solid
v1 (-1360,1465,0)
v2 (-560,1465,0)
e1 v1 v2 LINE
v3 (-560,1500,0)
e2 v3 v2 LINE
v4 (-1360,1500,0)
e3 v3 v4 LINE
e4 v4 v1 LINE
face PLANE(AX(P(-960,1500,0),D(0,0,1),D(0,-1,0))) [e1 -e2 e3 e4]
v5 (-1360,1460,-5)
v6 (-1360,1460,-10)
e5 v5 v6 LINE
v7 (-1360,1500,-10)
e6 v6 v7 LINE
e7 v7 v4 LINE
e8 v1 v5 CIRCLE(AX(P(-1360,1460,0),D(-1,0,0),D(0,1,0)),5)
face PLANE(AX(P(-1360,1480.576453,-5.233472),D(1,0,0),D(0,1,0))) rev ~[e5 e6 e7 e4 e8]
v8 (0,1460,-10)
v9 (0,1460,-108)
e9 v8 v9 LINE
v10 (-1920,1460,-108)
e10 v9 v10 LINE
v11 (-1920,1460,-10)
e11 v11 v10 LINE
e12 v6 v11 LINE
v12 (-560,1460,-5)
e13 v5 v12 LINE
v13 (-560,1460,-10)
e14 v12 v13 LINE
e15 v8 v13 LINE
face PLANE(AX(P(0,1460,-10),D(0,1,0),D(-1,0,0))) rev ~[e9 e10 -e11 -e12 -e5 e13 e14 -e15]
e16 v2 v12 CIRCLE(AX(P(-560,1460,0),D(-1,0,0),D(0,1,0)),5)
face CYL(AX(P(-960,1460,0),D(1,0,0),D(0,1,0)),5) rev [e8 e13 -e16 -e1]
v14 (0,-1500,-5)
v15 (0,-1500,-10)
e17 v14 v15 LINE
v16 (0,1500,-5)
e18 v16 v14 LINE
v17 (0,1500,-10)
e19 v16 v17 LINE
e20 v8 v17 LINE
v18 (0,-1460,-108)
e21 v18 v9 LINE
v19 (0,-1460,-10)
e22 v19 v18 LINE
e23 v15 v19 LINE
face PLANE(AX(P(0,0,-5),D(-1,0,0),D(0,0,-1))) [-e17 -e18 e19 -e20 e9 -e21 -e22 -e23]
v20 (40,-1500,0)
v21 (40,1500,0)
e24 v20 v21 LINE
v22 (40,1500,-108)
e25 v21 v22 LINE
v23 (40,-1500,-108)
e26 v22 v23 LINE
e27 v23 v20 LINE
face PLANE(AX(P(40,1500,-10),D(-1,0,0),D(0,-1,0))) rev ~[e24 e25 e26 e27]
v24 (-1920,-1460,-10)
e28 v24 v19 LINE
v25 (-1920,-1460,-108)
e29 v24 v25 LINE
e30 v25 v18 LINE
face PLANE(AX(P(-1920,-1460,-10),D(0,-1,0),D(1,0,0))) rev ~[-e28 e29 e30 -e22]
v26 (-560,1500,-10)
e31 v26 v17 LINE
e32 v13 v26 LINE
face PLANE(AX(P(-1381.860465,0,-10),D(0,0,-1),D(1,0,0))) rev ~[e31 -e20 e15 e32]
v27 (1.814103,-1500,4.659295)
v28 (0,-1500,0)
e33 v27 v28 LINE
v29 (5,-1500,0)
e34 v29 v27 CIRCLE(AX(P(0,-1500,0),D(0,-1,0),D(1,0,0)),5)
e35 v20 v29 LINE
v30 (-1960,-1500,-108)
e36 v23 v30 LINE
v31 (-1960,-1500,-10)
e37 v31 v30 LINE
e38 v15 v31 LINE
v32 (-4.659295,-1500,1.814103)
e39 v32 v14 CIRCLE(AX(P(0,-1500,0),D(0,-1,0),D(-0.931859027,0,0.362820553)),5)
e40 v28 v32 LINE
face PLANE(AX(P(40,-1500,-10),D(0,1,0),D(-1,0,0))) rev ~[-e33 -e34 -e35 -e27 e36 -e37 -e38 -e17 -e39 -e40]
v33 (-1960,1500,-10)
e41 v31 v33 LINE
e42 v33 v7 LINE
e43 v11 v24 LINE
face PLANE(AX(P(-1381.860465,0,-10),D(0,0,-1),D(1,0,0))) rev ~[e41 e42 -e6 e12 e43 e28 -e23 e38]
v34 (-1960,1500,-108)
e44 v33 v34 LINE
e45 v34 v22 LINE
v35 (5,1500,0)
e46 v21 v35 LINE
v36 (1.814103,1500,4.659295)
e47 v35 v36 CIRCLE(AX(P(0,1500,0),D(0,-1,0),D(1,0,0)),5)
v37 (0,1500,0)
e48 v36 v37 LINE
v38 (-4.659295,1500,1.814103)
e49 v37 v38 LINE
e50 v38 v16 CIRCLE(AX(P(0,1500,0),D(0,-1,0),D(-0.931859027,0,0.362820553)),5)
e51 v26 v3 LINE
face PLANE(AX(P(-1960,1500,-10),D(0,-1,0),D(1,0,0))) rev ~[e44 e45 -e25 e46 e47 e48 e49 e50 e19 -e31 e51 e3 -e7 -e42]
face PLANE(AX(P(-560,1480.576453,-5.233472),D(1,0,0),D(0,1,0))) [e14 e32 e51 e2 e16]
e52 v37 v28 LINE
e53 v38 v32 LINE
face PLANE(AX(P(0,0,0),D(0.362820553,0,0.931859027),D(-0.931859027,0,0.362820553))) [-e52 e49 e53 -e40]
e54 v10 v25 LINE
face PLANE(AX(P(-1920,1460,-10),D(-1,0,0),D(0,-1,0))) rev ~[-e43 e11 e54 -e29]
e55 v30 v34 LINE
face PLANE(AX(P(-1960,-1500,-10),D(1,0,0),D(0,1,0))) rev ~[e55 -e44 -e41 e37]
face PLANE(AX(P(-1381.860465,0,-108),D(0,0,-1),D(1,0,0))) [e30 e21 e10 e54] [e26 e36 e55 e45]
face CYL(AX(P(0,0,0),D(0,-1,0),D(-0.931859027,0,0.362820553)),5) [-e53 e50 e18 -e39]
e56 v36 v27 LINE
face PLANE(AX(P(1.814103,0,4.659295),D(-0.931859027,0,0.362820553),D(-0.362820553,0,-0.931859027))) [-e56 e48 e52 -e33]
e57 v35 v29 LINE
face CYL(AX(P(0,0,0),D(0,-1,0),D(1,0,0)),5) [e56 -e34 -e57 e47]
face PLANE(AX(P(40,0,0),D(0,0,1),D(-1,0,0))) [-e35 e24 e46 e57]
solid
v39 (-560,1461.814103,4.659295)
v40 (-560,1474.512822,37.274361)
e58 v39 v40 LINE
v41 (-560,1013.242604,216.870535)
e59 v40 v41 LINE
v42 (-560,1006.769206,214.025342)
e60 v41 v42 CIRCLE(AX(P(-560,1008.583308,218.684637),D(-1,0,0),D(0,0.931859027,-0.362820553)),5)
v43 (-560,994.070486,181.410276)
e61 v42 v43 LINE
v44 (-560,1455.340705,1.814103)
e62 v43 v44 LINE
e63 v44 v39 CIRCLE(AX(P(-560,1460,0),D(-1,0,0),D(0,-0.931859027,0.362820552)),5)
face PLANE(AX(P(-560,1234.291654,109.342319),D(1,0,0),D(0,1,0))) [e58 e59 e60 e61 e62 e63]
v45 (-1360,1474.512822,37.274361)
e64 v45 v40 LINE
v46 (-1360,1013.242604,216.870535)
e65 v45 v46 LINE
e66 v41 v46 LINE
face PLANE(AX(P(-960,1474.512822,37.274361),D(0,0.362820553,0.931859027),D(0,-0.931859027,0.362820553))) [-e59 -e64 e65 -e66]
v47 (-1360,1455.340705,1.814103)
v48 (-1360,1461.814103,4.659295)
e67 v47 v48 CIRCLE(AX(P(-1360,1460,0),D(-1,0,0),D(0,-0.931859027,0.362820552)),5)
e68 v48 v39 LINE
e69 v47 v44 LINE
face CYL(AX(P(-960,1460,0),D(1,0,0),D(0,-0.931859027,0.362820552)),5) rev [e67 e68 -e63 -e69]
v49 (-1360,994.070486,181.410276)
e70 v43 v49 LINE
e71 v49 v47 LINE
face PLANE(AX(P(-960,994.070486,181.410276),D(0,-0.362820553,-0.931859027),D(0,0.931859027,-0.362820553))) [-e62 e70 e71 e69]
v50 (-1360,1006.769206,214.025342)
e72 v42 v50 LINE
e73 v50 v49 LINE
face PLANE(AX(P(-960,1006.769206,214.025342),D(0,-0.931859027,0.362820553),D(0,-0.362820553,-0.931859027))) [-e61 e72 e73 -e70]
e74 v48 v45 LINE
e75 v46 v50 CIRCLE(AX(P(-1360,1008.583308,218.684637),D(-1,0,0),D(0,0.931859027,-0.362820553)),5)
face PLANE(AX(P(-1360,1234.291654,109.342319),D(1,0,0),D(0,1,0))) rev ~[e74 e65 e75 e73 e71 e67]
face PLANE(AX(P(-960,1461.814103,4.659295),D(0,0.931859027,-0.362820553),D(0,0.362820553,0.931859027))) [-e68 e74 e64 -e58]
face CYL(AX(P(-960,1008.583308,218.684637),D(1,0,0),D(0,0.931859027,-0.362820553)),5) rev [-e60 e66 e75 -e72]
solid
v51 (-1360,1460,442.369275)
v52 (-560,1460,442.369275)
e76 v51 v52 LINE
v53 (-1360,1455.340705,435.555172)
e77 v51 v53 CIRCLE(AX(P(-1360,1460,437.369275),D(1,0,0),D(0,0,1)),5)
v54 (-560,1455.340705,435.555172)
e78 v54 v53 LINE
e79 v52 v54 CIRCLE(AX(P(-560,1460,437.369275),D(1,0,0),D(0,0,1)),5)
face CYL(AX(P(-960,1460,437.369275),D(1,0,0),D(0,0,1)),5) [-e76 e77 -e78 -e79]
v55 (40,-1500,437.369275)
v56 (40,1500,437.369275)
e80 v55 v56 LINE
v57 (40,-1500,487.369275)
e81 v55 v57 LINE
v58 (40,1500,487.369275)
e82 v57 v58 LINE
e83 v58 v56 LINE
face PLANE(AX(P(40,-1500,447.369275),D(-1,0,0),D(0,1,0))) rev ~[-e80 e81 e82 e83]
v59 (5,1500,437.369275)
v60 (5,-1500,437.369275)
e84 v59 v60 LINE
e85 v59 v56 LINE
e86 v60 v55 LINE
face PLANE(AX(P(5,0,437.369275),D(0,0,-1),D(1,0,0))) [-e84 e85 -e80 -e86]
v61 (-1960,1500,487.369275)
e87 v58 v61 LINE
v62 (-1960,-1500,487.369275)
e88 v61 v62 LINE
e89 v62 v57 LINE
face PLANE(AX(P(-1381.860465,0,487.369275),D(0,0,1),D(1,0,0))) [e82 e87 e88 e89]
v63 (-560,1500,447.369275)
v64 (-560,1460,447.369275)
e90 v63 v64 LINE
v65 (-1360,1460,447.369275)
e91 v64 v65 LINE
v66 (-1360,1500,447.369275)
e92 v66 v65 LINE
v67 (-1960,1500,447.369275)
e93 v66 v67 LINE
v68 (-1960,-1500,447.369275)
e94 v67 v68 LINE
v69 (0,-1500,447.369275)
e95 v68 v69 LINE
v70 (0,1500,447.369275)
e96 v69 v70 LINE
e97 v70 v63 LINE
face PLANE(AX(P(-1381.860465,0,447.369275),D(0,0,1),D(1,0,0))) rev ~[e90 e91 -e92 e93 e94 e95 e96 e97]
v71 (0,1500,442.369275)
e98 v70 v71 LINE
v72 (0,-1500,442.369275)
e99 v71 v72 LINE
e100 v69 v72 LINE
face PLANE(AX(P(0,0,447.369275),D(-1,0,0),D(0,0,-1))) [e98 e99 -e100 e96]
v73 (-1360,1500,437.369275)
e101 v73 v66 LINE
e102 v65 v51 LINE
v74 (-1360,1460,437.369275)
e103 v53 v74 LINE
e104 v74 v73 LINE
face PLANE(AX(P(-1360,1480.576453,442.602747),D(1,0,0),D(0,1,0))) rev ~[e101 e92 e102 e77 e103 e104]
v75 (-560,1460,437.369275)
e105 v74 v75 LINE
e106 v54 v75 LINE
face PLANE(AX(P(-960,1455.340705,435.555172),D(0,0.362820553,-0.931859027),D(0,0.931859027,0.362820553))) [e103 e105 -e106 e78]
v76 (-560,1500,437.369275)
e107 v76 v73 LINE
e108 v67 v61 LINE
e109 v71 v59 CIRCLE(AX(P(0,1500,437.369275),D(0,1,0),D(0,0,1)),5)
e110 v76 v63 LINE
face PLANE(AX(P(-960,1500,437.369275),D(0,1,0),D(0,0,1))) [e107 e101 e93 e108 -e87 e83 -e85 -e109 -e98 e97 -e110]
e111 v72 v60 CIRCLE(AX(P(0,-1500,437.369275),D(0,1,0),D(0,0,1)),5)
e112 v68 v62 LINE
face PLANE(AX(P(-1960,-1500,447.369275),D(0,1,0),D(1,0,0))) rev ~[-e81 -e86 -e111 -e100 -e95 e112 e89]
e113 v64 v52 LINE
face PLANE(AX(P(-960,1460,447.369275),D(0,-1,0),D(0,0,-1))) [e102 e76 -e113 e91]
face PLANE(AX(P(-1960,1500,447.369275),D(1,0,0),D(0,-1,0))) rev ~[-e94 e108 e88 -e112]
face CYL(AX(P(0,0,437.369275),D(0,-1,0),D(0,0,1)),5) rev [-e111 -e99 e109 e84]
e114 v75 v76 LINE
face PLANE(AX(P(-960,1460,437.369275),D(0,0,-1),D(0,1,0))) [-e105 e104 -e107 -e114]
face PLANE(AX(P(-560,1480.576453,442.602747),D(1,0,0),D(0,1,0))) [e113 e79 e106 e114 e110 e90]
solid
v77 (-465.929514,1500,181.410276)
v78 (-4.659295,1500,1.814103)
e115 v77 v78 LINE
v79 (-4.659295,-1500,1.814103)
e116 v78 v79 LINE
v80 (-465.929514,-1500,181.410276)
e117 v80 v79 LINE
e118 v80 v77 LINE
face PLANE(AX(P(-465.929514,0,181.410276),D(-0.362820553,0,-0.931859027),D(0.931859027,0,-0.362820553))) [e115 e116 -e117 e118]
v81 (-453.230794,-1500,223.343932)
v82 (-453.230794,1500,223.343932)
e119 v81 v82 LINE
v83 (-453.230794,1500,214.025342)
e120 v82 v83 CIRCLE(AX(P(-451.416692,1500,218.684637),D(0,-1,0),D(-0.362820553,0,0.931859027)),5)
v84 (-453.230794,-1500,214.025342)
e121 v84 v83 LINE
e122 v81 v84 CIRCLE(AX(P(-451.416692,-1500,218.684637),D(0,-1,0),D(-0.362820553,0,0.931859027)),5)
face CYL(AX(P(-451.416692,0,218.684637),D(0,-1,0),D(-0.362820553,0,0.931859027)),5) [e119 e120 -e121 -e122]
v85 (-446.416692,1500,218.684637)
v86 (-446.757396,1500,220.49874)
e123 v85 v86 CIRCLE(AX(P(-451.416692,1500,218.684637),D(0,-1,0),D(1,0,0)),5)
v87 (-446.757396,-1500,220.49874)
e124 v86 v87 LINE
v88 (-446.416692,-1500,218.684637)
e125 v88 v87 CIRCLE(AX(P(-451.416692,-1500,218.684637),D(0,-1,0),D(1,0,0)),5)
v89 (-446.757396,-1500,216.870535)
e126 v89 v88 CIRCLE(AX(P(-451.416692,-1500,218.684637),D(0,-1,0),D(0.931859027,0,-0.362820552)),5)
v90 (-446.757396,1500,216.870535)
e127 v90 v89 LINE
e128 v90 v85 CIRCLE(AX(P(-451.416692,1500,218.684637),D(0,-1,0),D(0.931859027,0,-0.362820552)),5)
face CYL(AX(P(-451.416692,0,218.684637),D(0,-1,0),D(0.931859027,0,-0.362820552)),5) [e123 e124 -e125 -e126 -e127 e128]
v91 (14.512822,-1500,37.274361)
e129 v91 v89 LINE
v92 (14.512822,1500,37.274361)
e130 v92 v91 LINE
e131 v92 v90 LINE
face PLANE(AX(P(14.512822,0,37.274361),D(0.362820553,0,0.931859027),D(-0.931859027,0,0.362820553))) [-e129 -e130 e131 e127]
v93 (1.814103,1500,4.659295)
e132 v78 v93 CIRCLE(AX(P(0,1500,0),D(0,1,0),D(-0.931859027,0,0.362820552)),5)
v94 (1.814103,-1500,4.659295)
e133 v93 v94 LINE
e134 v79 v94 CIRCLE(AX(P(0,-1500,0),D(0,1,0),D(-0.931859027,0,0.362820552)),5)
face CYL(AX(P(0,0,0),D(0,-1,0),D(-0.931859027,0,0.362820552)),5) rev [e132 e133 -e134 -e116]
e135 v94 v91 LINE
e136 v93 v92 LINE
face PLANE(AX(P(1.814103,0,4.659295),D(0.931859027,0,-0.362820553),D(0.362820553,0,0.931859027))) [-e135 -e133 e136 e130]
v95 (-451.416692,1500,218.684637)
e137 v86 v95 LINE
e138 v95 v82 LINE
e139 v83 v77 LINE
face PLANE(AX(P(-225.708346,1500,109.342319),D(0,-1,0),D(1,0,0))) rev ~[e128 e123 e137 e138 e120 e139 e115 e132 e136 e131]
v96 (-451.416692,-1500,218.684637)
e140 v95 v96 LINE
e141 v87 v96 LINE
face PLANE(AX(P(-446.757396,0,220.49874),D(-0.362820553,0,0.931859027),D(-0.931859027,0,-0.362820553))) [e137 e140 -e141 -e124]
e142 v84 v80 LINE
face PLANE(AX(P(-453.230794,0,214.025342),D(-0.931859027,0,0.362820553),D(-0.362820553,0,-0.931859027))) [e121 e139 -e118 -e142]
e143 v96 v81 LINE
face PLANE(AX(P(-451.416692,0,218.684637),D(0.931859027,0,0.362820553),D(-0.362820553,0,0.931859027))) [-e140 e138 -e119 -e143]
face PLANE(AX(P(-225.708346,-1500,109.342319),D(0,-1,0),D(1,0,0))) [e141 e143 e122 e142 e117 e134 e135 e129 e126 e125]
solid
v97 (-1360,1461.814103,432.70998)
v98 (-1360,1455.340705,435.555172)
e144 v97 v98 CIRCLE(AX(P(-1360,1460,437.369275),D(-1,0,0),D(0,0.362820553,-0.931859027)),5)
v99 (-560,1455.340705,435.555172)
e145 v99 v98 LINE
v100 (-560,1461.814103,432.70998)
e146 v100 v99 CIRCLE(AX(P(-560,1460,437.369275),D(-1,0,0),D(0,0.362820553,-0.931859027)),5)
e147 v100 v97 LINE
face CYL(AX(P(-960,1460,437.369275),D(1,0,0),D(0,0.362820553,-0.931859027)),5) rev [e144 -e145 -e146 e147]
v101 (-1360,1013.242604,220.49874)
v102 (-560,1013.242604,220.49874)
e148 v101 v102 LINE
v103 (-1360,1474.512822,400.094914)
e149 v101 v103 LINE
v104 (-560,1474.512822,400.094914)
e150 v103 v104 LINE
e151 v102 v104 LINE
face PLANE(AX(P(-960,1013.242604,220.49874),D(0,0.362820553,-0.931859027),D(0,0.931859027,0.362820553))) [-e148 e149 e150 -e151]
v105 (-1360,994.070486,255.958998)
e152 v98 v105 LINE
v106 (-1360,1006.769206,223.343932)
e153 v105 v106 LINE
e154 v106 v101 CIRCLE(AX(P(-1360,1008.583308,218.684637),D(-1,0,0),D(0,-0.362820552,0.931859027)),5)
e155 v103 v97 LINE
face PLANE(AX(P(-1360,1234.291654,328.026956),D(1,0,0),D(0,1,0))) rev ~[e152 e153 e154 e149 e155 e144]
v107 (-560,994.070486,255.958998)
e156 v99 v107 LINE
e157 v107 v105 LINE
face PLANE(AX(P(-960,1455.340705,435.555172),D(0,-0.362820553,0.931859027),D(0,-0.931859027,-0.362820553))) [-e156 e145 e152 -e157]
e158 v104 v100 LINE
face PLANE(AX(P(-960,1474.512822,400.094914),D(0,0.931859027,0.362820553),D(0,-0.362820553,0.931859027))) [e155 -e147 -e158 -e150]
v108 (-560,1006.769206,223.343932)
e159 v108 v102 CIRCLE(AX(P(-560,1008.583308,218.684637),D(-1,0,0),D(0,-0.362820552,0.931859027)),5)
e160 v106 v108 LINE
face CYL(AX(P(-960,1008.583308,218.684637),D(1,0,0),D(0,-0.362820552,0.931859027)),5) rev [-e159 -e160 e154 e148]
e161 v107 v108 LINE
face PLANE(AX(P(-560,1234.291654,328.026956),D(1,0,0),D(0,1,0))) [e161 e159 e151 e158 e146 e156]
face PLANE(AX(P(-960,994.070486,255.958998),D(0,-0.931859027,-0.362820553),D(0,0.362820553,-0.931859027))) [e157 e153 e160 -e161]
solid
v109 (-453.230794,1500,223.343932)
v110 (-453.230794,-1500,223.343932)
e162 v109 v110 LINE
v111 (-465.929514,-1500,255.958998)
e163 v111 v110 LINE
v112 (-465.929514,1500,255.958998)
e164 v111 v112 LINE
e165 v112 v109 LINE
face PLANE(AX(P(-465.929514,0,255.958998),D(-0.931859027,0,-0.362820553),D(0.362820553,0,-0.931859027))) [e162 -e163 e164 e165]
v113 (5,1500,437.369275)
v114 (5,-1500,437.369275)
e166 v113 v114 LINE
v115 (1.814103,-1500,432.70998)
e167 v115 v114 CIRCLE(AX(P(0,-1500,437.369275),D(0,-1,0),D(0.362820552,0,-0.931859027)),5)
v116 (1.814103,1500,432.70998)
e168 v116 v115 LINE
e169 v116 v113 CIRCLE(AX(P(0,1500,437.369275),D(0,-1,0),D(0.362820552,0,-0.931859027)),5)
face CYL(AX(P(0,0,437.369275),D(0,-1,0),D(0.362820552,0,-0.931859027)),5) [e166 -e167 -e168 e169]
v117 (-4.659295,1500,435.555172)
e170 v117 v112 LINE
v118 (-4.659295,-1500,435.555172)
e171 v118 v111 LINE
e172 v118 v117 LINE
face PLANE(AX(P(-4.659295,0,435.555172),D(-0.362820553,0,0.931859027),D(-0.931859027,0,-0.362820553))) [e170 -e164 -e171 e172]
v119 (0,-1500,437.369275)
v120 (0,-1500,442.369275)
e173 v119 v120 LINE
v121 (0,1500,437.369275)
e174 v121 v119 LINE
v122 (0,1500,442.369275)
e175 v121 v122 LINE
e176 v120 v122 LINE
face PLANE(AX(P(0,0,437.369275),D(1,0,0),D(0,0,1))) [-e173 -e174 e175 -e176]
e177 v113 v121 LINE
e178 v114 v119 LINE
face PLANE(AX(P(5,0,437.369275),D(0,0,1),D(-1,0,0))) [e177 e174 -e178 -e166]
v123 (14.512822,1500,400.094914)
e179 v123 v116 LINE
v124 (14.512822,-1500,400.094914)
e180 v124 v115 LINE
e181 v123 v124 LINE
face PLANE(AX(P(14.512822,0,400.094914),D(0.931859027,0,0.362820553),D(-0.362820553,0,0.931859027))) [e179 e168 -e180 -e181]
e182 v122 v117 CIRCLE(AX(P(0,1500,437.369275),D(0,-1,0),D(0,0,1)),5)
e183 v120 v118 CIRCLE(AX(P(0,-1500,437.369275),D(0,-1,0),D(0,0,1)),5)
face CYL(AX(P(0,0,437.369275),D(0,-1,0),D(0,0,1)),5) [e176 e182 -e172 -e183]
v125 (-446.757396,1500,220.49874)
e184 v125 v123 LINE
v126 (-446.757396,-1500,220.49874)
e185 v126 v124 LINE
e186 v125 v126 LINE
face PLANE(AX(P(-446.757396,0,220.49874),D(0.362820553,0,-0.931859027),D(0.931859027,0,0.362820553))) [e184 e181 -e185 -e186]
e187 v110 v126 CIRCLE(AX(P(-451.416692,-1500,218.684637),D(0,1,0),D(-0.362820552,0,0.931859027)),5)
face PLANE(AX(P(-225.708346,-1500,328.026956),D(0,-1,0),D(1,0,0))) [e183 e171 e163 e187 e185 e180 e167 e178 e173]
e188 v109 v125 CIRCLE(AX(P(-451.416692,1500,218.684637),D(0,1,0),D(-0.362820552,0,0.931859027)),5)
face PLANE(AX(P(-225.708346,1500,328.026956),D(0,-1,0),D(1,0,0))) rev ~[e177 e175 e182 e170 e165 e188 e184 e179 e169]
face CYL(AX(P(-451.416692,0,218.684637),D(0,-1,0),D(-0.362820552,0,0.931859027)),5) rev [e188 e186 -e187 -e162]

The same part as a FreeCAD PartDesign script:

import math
import FreeCAD as App
import Part
import Sketcher
from FreeCAD import Vector
Q = App.Units.Quantity


def add_polygon(sketch, points):
    """Adds a closed chain of lines whose ends are joined by coincident constraints."""
    first, n = sketch.GeometryCount, len(points)
    for a, b in zip(points, points[1:] + points[:1]):
        sketch.addGeometry(Part.LineSegment(App.Vector(*a, 0), App.Vector(*b, 0)), False)
    for i in range(n):
        sketch.addConstraint(Sketcher.Constraint("Coincident", first + i, 2, first + (i + 1) % n, 1))

doc = App.newDocument("Part")
body = doc.addObject("PartDesign::Body", "Body")

# Sketch on XZ plane
sketch1 = body.newObject("Sketcher::SketchObject", "Sketch")
sketch1.AttachmentSupport = (doc.getObject("XZ_Plane"), [""])
sketch1.MapMode = "FlatFace"
sketch1.addGeometry([
    Part.LineSegment(Vector(0, 447.369275, 0), Vector(0, 442.369275, 0)),  # 0
    Part.ArcOfCircle(Part.Circle(Vector(0, 437.369275, 0), Vector(0, 0, 1), 5), math.radians(0), math.radians(90)),  # 1
    Part.LineSegment(Vector(5, 437.369275, 0), Vector(40, 437.369275, 0)),  # 2
    Part.LineSegment(Vector(40, 437.369275, 0), Vector(40, 447.369275, 0)),  # 3
    Part.LineSegment(Vector(40, 447.369275, 0), Vector(0, 447.369275, 0)),  # 4
], False)
sketch1.addConstraint([
    Sketcher.Constraint("Coincident", 0, 2, 1, 2),
    Sketcher.Constraint("Coincident", 1, 1, 2, 1),
    Sketcher.Constraint("Coincident", 2, 2, 3, 1),
    Sketcher.Constraint("Coincident", 3, 2, 4, 1),
    Sketcher.Constraint("Coincident", 4, 2, 0, 1),
    Sketcher.Constraint("Vertical", 0),
    Sketcher.Constraint("Horizontal", 2),
    Sketcher.Constraint("Vertical", 3),
    Sketcher.Constraint("Horizontal", 4),
    Sketcher.Constraint("PointOnObject", 1, 3, -2),
    Sketcher.Constraint("PointOnObject", 0, 2, -2),
    Sketcher.Constraint("Radius", 1, Q("5 mm")),
    Sketcher.Constraint("DistanceX", 2, 1, 2, 2, Q("35 mm")),
    Sketcher.Constraint("DistanceY", 0, 2, 0, 1, Q("5 mm")),
    Sketcher.Constraint("DistanceY", 3, 1, 3, 2, Q("10 mm")),
    Sketcher.Constraint("DistanceY", -1, 1, 1, 3, Q("437.369275 mm")),
])
pad1 = body.newObject("PartDesign::Pad", "Pad")
pad1.Profile = sketch1
pad1.Length = 3000
pad1.Midplane = True

# Sketch on XY plane
sketch2 = body.newObject("Sketcher::SketchObject", "Sketch001")
sketch2.AttachmentSupport = (doc.getObject("XY_Plane"), [""])
sketch2.MapMode = "FlatFace"
sketch2.AttachmentOffset = App.Placement(Vector(0, 0, 447.369275), App.Rotation())
add_polygon(sketch2, [(-1960, 1500), (-1960, -1500), (40, -1500), (40, 1500)])  # lines 0-3
sketch2.addConstraint([
    Sketcher.Constraint("Vertical", 0),
    Sketcher.Constraint("Horizontal", 1),
    Sketcher.Constraint("Vertical", 2),
    Sketcher.Constraint("Horizontal", 3),
    Sketcher.Constraint("DistanceX", 1, 1, 1, 2, Q("2000 mm")),
    Sketcher.Constraint("DistanceY", 0, 2, 0, 1, Q("3000 mm")),
    Sketcher.Constraint("DistanceX", 0, 2, -1, 1, Q("1960 mm")),
    Sketcher.Constraint("DistanceY", 0, 2, -1, 1, Q("1500 mm")),
])
pad2 = body.newObject("PartDesign::Pad", "Pad001")
pad2.Profile = sketch2
pad2.Length = 40
body2 = doc.addObject("PartDesign::Body", "Body001")

# Sketch on XZ plane
sketch3 = body2.newObject("Sketcher::SketchObject", "Sketch002")
sketch3.AttachmentSupport = (doc.getObject("XZ_Plane001"), [""])
sketch3.MapMode = "FlatFace"
sketch3.addGeometry([
    Part.LineSegment(Vector(-465.929514, 255.958998, 0), Vector(-453.230794, 223.343932, 0)),  # 0
    Part.ArcOfCircle(Part.Circle(Vector(-451.416692, 218.684637, 0), Vector(0, 0, 1), 5), math.radians(21.273517), math.radians(111.273517)),  # 1
    Part.LineSegment(Vector(-446.757396, 220.49874, 0), Vector(14.512822, 400.094914, 0)),  # 2
    Part.LineSegment(Vector(14.512822, 400.094914, 0), Vector(1.814103, 432.70998, 0)),  # 3
    Part.ArcOfCircle(Part.Circle(Vector(0, 437.369275, 0), Vector(0, 0, 1), 5), math.radians(-68.726483), math.radians(0)),  # 4
    Part.LineSegment(Vector(5, 437.369275, 0), Vector(0, 437.369275, 0)),  # 5
    Part.LineSegment(Vector(0, 437.369275, 0), Vector(0, 442.369275, 0)),  # 6
    Part.ArcOfCircle(Part.Circle(Vector(0, 437.369275, 0), Vector(0, 0, 1), 5), math.radians(90), math.radians(201.273517)),  # 7
    Part.LineSegment(Vector(-4.659295, 435.555172, 0), Vector(-465.929514, 255.958998, 0)),  # 8
], False)
sketch3.addConstraint([
    Sketcher.Constraint("Coincident", 0, 2, 1, 2),
    Sketcher.Constraint("Coincident", 1, 1, 2, 1),
    Sketcher.Constraint("Coincident", 2, 2, 3, 1),
    Sketcher.Constraint("Coincident", 3, 2, 4, 1),
    Sketcher.Constraint("Coincident", 4, 2, 5, 1),
    Sketcher.Constraint("Coincident", 5, 2, 6, 1),
    Sketcher.Constraint("Coincident", 6, 2, 7, 1),
    Sketcher.Constraint("Coincident", 7, 2, 8, 1),
    Sketcher.Constraint("Coincident", 8, 2, 0, 1),
    Sketcher.Constraint("Horizontal", 5),
    Sketcher.Constraint("Vertical", 6),
    Sketcher.Constraint("Coincident", 7, 3, 4, 3),
    Sketcher.Constraint("Coincident", 5, 2, 4, 3),
    Sketcher.Constraint("Equal", 1, 4),
    Sketcher.Constraint("Equal", 4, 7),
    Sketcher.Constraint("PointOnObject", 4, 3, -2),
    Sketcher.Constraint("Perpendicular", 0, 2),
    Sketcher.Constraint("Perpendicular", 2, 3),
    Sketcher.Constraint("Perpendicular", 3, 8),
    Sketcher.Constraint("Equal", 0, 3),
    Sketcher.Constraint("Equal", 2, 8),
    Sketcher.Constraint("Radius", 1, Q("5 mm")),
    Sketcher.Constraint("Distance", 0, Q("35 mm")),
    Sketcher.Constraint("Distance", 2, Q("495 mm")),
    Sketcher.Constraint("DistanceY", -1, 1, 8, 2, Q("255.958998 mm")),
    Sketcher.Constraint("DistanceX", 1, 1, 3, 2, Q("448.571499 mm")),
    Sketcher.Constraint("DistanceX", 1, 3, -1, 1, Q("451.416692 mm")),
    Sketcher.Constraint("DistanceY", -1, 1, 1, 1, Q("220.49874 mm")),
])
pad3 = body2.newObject("PartDesign::Pad", "Pad002")
pad3.Profile = sketch3
pad3.Length = 3000
pad3.Midplane = True
body3 = doc.addObject("PartDesign::Body", "Body002")

# Sketch on XZ plane
sketch4 = body3.newObject("Sketcher::SketchObject", "Sketch003")
sketch4.AttachmentSupport = (doc.getObject("XZ_Plane002"), [""])
sketch4.MapMode = "FlatFace"
sketch4.addGeometry([
    Part.LineSegment(Vector(-465.929514, 181.410276, 0), Vector(-4.659295, 1.814103, 0)),  # 0
    Part.ArcOfCircle(Part.Circle(Vector(0, 0, 0), Vector(0, 0, 1), 5), math.radians(68.726483), math.radians(158.726483)),  # 1
    Part.LineSegment(Vector(1.814103, 4.659295, 0), Vector(14.512822, 37.274361, 0)),  # 2
    Part.LineSegment(Vector(14.512822, 37.274361, 0), Vector(-446.757396, 216.870535, 0)),  # 3
    Part.ArcOfCircle(Part.Circle(Vector(-451.416692, 218.684637, 0), Vector(0, 0, 1), 5), math.radians(-21.273517), math.radians(0)),  # 4
    Part.ArcOfCircle(Part.Circle(Vector(-451.416692, 218.684637, 0), Vector(0, 0, 1), 5), math.radians(0), math.radians(21.273517)),  # 5
    Part.LineSegment(Vector(-446.757396, 220.49874, 0), Vector(-451.416692, 218.684637, 0)),  # 6
    Part.LineSegment(Vector(-451.416692, 218.684637, 0), Vector(-453.230794, 223.343932, 0)),  # 7
    Part.ArcOfCircle(Part.Circle(Vector(-451.416692, 218.684637, 0), Vector(0, 0, 1), 5), math.radians(111.273517), math.radians(248.726483)),  # 8
    Part.LineSegment(Vector(-453.230794, 214.025342, 0), Vector(-465.929514, 181.410276, 0)),  # 9
], False)
sketch4.addConstraint([
    Sketcher.Constraint("Coincident", 0, 2, 1, 2),
    Sketcher.Constraint("Coincident", 1, 1, 2, 1),
    Sketcher.Constraint("Coincident", 2, 2, 3, 1),
    Sketcher.Constraint("Coincident", 3, 2, 4, 1),
    Sketcher.Constraint("Tangent", 4, 2, 5, 1),
    Sketcher.Constraint("Coincident", 5, 2, 6, 1),
    Sketcher.Constraint("Coincident", 6, 2, 7, 1),
    Sketcher.Constraint("Coincident", 7, 2, 8, 1),
    Sketcher.Constraint("Coincident", 8, 2, 9, 1),
    Sketcher.Constraint("Coincident", 9, 2, 0, 1),
    Sketcher.Constraint("Coincident", 1, 3, -1, 1),
    Sketcher.Constraint("Coincident", 8, 3, 4, 3),
    Sketcher.Constraint("Coincident", 6, 2, 4, 3),
    Sketcher.Constraint("Equal", 1, 4),
    Sketcher.Constraint("Equal", 4, 5),
    Sketcher.Constraint("Equal", 5, 8),
    Sketcher.Constraint("Perpendicular", 0, 2),
    Sketcher.Constraint("Perpendicular", 2, 3),
    Sketcher.Constraint("Perpendicular", 6, 7),
    Sketcher.Constraint("Perpendicular", 3, 9),
    Sketcher.Constraint("Horizontal", 8, 3, 4, 2),
    Sketcher.Constraint("Vertical", 3, 2, 5, 2),
    Sketcher.Constraint("Vertical", 7, 2, 8, 2),
    Sketcher.Constraint("Equal", 0, 3),
    Sketcher.Constraint("Equal", 2, 9),
    Sketcher.Constraint("Radius", 1, Q("5 mm")),
    Sketcher.Constraint("Distance", 0, Q("495 mm")),
    Sketcher.Constraint("Distance", 2, Q("35 mm")),
    Sketcher.Constraint("DistanceX", 3, 2, 0, 2, Q("442.098101 mm")),
    Sketcher.Constraint("DistanceX", 4, 3, -1, 1, Q("451.416692 mm")),
])
pad4 = body3.newObject("PartDesign::Pad", "Pad003")
pad4.Profile = sketch4
pad4.Length = 3000
pad4.Midplane = True
body4 = doc.addObject("PartDesign::Body", "Body003")

# Sketch on XZ plane
sketch5 = body4.newObject("Sketcher::SketchObject", "Sketch004")
sketch5.AttachmentSupport = (doc.getObject("XZ_Plane003"), [""])
sketch5.MapMode = "FlatFace"
sketch5.addGeometry([
    Part.LineSegment(Vector(40, 0, 0), Vector(5, 0, 0)),  # 0
    Part.ArcOfCircle(Part.Circle(Vector(0, 0, 0), Vector(0, 0, 1), 5), math.radians(0), math.radians(68.726483)),  # 1
    Part.LineSegment(Vector(1.814103, 4.659295, 0), Vector(0, 0, 0)),  # 2
    Part.LineSegment(Vector(0, 0, 0), Vector(-4.659295, 1.814103, 0)),  # 3
    Part.ArcOfCircle(Part.Circle(Vector(0, 0, 0), Vector(0, 0, 1), 5), math.radians(158.726483), math.radians(270)),  # 4
    Part.LineSegment(Vector(0, -5, 0), Vector(0, -10, 0)),  # 5
    Part.LineSegment(Vector(0, -10, 0), Vector(40, -10, 0)),  # 6
    Part.LineSegment(Vector(40, -10, 0), Vector(40, 0, 0)),  # 7
], False)
sketch5.addConstraint([
    Sketcher.Constraint("Coincident", 0, 2, 1, 1),
    Sketcher.Constraint("Coincident", 1, 2, 2, 1),
    Sketcher.Constraint("Coincident", 2, 2, 3, 1),
    Sketcher.Constraint("Coincident", 3, 2, 4, 1),
    Sketcher.Constraint("Coincident", 4, 2, 5, 1),
    Sketcher.Constraint("Coincident", 5, 2, 6, 1),
    Sketcher.Constraint("Coincident", 6, 2, 7, 1),
    Sketcher.Constraint("Coincident", 7, 2, 0, 1),
    Sketcher.Constraint("Horizontal", 0),
    Sketcher.Constraint("Vertical", 5),
    Sketcher.Constraint("Horizontal", 6),
    Sketcher.Constraint("Vertical", 7),
    Sketcher.Constraint("Coincident", 1, 3, -1, 1),
    Sketcher.Constraint("Coincident", 4, 3, -1, 1),
    Sketcher.Constraint("Coincident", 2, 2, -1, 1),
    Sketcher.Constraint("Equal", 1, 4),
    Sketcher.Constraint("PointOnObject", 0, 2, -1),
    Sketcher.Constraint("PointOnObject", 4, 2, -2),
    Sketcher.Constraint("Perpendicular", 2, 3),
    Sketcher.Constraint("Radius", 1, Q("5 mm")),
    Sketcher.Constraint("DistanceX", 0, 2, 0, 1, Q("35 mm")),
    Sketcher.Constraint("DistanceY", 5, 2, 5, 1, Q("5 mm")),
    Sketcher.Constraint("DistanceX", -1, 1, 1, 2, Q("1.814103 mm")),
])
pad5 = body4.newObject("PartDesign::Pad", "Pad004")
pad5.Profile = sketch5
pad5.Length = 3000
pad5.Midplane = True

# Sketch on XY plane
sketch6 = body4.newObject("Sketcher::SketchObject", "Sketch005")
sketch6.AttachmentSupport = (doc.getObject("XY_Plane003"), [""])
sketch6.MapMode = "FlatFace"
sketch6.AttachmentOffset = App.Placement(Vector(0, 0, -10), App.Rotation())
add_polygon(sketch6, [(-1960, -1500), (-1960, 1500), (40, 1500), (40, -1500)])  # lines 0-3
add_polygon(sketch6, [(0, 1460), (-1920, 1460), (-1920, -1460), (0, -1460)])  # lines 4-7
sketch6.addConstraint([
    Sketcher.Constraint("Vertical", 0),
    Sketcher.Constraint("Horizontal", 1),
    Sketcher.Constraint("Vertical", 2),
    Sketcher.Constraint("Horizontal", 3),
    Sketcher.Constraint("Horizontal", 4),
    Sketcher.Constraint("Vertical", 5),
    Sketcher.Constraint("Horizontal", 6),
    Sketcher.Constraint("Vertical", 7),
    Sketcher.Constraint("Symmetric", 6, 2, 7, 2, -1, 1),
    Sketcher.Constraint("DistanceX", 1, 1, 1, 2, Q("2000 mm")),
    Sketcher.Constraint("DistanceX", 4, 2, 4, 1, Q("1920 mm")),
    Sketcher.Constraint("DistanceY", 0, 1, 0, 2, Q("3000 mm")),
    Sketcher.Constraint("DistanceY", 5, 2, 5, 1, Q("2920 mm")),
    Sketcher.Constraint("DistanceX", 0, 2, -1, 1, Q("1960 mm")),
    Sketcher.Constraint("DistanceY", -1, 1, 0, 2, Q("1500 mm")),
])
pad6 = body4.newObject("PartDesign::Pad", "Pad005")
pad6.Profile = sketch6
pad6.Length = 98
pad6.Reversed = True

# Sketch on YZ plane
sketch7 = body4.newObject("Sketcher::SketchObject", "Sketch006")
sketch7.AttachmentSupport = (doc.getObject("YZ_Plane003"), [""])
sketch7.MapMode = "FlatFace"
sketch7.AttachmentOffset = App.Placement(Vector(0, 0, -960), App.Rotation())
sketch7.addGeometry([
    Part.LineSegment(Vector(1500, 0, 0), Vector(1465, 0, 0)),  # 0
    Part.ArcOfCircle(Part.Circle(Vector(1460, 0, 0), Vector(0, 0, 1), 5), math.radians(-90), math.radians(0)),  # 1
    Part.LineSegment(Vector(1460, -5, 0), Vector(1460, -10, 0)),  # 2
    Part.LineSegment(Vector(1460, -10, 0), Vector(1500, -10, 0)),  # 3
    Part.LineSegment(Vector(1500, -10, 0), Vector(1500, 0, 0)),  # 4
], False)
sketch7.addConstraint([
    Sketcher.Constraint("Coincident", 0, 2, 1, 2),
    Sketcher.Constraint("Coincident", 1, 1, 2, 1),
    Sketcher.Constraint("Coincident", 2, 2, 3, 1),
    Sketcher.Constraint("Coincident", 3, 2, 4, 1),
    Sketcher.Constraint("Coincident", 4, 2, 0, 1),
    Sketcher.Constraint("Horizontal", 0),
    Sketcher.Constraint("Vertical", 2),
    Sketcher.Constraint("Horizontal", 3),
    Sketcher.Constraint("Vertical", 4),
    Sketcher.Constraint("PointOnObject", 1, 3, -1),
    Sketcher.Constraint("PointOnObject", 0, 2, -1),
    Sketcher.Constraint("Radius", 1, Q("5 mm")),
    Sketcher.Constraint("DistanceX", 0, 2, 0, 1, Q("35 mm")),
    Sketcher.Constraint("DistanceX", 3, 1, 3, 2, Q("40 mm")),
    Sketcher.Constraint("DistanceY", 2, 2, 2, 1, Q("5 mm")),
    Sketcher.Constraint("DistanceX", -1, 1, 1, 3, Q("1460 mm")),
])
pad7 = body4.newObject("PartDesign::Pad", "Pad006")
pad7.Profile = sketch7
pad7.Length = 800
pad7.Midplane = True
body5 = doc.addObject("PartDesign::Body", "Body004")

# Sketch on YZ plane
sketch8 = body5.newObject("Sketcher::SketchObject", "Sketch007")
sketch8.AttachmentSupport = (doc.getObject("YZ_Plane004"), [""])
sketch8.MapMode = "FlatFace"
sketch8.AttachmentOffset = App.Placement(Vector(0, 0, -960), App.Rotation())
sketch8.addGeometry([
    Part.LineSegment(Vector(994.070486, 255.958998, 0), Vector(1006.769206, 223.343932, 0)),  # 0
    Part.ArcOfCircle(Part.Circle(Vector(1008.583308, 218.684637, 0), Vector(0, 0, 1), 5), math.radians(21.273517), math.radians(111.273517)),  # 1
    Part.LineSegment(Vector(1013.242604, 220.49874, 0), Vector(1474.512822, 400.094914, 0)),  # 2
    Part.LineSegment(Vector(1474.512822, 400.094914, 0), Vector(1461.814103, 432.70998, 0)),  # 3
    Part.ArcOfCircle(Part.Circle(Vector(1460, 437.369275, 0), Vector(0, 0, 1), 5), math.radians(-158.726483), math.radians(-68.726483)),  # 4
    Part.LineSegment(Vector(1455.340705, 435.555172, 0), Vector(994.070486, 255.958998, 0)),  # 5
], False)
sketch8.addConstraint([
    Sketcher.Constraint("Coincident", 0, 2, 1, 2),
    Sketcher.Constraint("Coincident", 1, 1, 2, 1),
    Sketcher.Constraint("Coincident", 2, 2, 3, 1),
    Sketcher.Constraint("Coincident", 3, 2, 4, 2),
    Sketcher.Constraint("Coincident", 4, 1, 5, 1),
    Sketcher.Constraint("Coincident", 5, 2, 0, 1),
    Sketcher.Constraint("Equal", 1, 4),
    Sketcher.Constraint("Perpendicular", 0, 2),
    Sketcher.Constraint("Perpendicular", 2, 3),
    Sketcher.Constraint("Perpendicular", 3, 5),
    Sketcher.Constraint("Equal", 0, 3),
    Sketcher.Constraint("Equal", 2, 5),
    Sketcher.Constraint("Radius", 1, Q("5 mm")),
    Sketcher.Constraint("Distance", 0, Q("35 mm")),
    Sketcher.Constraint("Distance", 2, Q("495 mm")),
    Sketcher.Constraint("DistanceX", -1, 1, 4, 3, Q("1460 mm")),
    Sketcher.Constraint("DistanceY", -1, 1, 5, 2, Q("255.958998 mm")),
    Sketcher.Constraint("DistanceX", 1, 1, 3, 2, Q("448.571499 mm")),
    Sketcher.Constraint("DistanceX", 1, 1, 4, 1, Q("442.098101 mm")),
    Sketcher.Constraint("DistanceX", -1, 1, 1, 3, Q("1008.583308 mm")),
])
pad8 = body5.newObject("PartDesign::Pad", "Pad007")
pad8.Profile = sketch8
pad8.Length = 800
pad8.Midplane = True
body6 = doc.addObject("PartDesign::Body", "Body005")

# Sketch on YZ plane
sketch9 = body6.newObject("Sketcher::SketchObject", "Sketch008")
sketch9.AttachmentSupport = (doc.getObject("YZ_Plane005"), [""])
sketch9.MapMode = "FlatFace"
sketch9.AttachmentOffset = App.Placement(Vector(0, 0, -960), App.Rotation())
sketch9.addGeometry([
    Part.LineSegment(Vector(994.070486, 181.410276, 0), Vector(1455.340705, 1.814103, 0)),  # 0
    Part.ArcOfCircle(Part.Circle(Vector(1460, 0, 0), Vector(0, 0, 1), 5), math.radians(68.726483), math.radians(158.726483)),  # 1
    Part.LineSegment(Vector(1461.814103, 4.659295, 0), Vector(1474.512822, 37.274361, 0)),  # 2
    Part.LineSegment(Vector(1474.512822, 37.274361, 0), Vector(1013.242604, 216.870535, 0)),  # 3
    Part.ArcOfCircle(Part.Circle(Vector(1008.583308, 218.684637, 0), Vector(0, 0, 1), 5), math.radians(-111.273517), math.radians(-21.273517)),  # 4
    Part.LineSegment(Vector(1006.769206, 214.025342, 0), Vector(994.070486, 181.410276, 0)),  # 5
], False)
sketch9.addConstraint([
    Sketcher.Constraint("Coincident", 0, 2, 1, 2),
    Sketcher.Constraint("Coincident", 1, 1, 2, 1),
    Sketcher.Constraint("Coincident", 2, 2, 3, 1),
    Sketcher.Constraint("Coincident", 3, 2, 4, 2),
    Sketcher.Constraint("Coincident", 4, 1, 5, 1),
    Sketcher.Constraint("Coincident", 5, 2, 0, 1),
    Sketcher.Constraint("Equal", 1, 4),
    Sketcher.Constraint("PointOnObject", 1, 3, -1),
    Sketcher.Constraint("Perpendicular", 0, 2),
    Sketcher.Constraint("Perpendicular", 2, 3),
    Sketcher.Constraint("Perpendicular", 3, 5),
    Sketcher.Constraint("Equal", 0, 3),
    Sketcher.Constraint("Equal", 2, 5),
    Sketcher.Constraint("Radius", 1, Q("5 mm")),
    Sketcher.Constraint("Distance", 0, Q("495 mm")),
    Sketcher.Constraint("Distance", 2, Q("35 mm")),
    Sketcher.Constraint("DistanceX", -1, 1, 1, 3, Q("1460 mm")),
    Sketcher.Constraint("DistanceX", 3, 2, 0, 2, Q("442.098101 mm")),
    Sketcher.Constraint("DistanceX", 3, 2, 1, 1, Q("448.571499 mm")),
    Sketcher.Constraint("DistanceX", -1, 1, 4, 3, Q("1008.583308 mm")),
])
pad9 = body6.newObject("PartDesign::Pad", "Pad008")
pad9.Profile = sketch9
pad9.Length = 800
pad9.Midplane = True
body.AllowCompound = True
doc.recompute()

boolean = body.newObject("PartDesign::Boolean", "Boolean")
boolean.Type = "Fuse"
boolean.addObjects([body5])

# Sketch on YZ plane
sketch10 = body.newObject("Sketcher::SketchObject", "Sketch009")
sketch10.AttachmentSupport = (doc.getObject("YZ_Plane"), [""])
sketch10.MapMode = "FlatFace"
sketch10.AttachmentOffset = App.Placement(Vector(0, 0, -960), App.Rotation())
sketch10.addGeometry([
    Part.LineSegment(Vector(1460, 447.369275, 0), Vector(1460, 442.369275, 0)),  # 0
    Part.ArcOfCircle(Part.Circle(Vector(1460, 437.369275, 0), Vector(0, 0, 1), 5), math.radians(90), math.radians(201.273517)),  # 1
    Part.LineSegment(Vector(1455.340705, 435.555172, 0), Vector(1460, 437.369275, 0)),  # 2
    Part.LineSegment(Vector(1460, 437.369275, 0), Vector(1500, 437.369275, 0)),  # 3
    Part.LineSegment(Vector(1500, 437.369275, 0), Vector(1500, 447.369275, 0)),  # 4
    Part.LineSegment(Vector(1500, 447.369275, 0), Vector(1460, 447.369275, 0)),  # 5
], False)
sketch10.addConstraint([
    Sketcher.Constraint("Coincident", 0, 2, 1, 1),
    Sketcher.Constraint("Coincident", 1, 2, 2, 1),
    Sketcher.Constraint("Coincident", 2, 2, 3, 1),
    Sketcher.Constraint("Coincident", 3, 2, 4, 1),
    Sketcher.Constraint("Coincident", 4, 2, 5, 1),
    Sketcher.Constraint("Coincident", 5, 2, 0, 1),
    Sketcher.Constraint("Vertical", 0),
    Sketcher.Constraint("Horizontal", 3),
    Sketcher.Constraint("Vertical", 4),
    Sketcher.Constraint("Horizontal", 5),
    Sketcher.Constraint("Coincident", 2, 2, 1, 3),
    Sketcher.Constraint("Vertical", 1, 3, 0, 2),
    Sketcher.Constraint("Radius", 1, Q("5 mm")),
    Sketcher.Constraint("DistanceX", 3, 1, 3, 2, Q("40 mm")),
    Sketcher.Constraint("DistanceY", 0, 2, 0, 1, Q("5 mm")),
    Sketcher.Constraint("DistanceX", -1, 1, 1, 3, Q("1460 mm")),
    Sketcher.Constraint("DistanceY", -1, 1, 1, 2, Q("435.555172 mm")),
    Sketcher.Constraint("DistanceY", -1, 1, 1, 3, Q("437.369275 mm")),
])
pad10 = body.newObject("PartDesign::Pad", "Pad009")
pad10.Profile = sketch10
pad10.Length = 800
pad10.Midplane = True

doc.recompute()
